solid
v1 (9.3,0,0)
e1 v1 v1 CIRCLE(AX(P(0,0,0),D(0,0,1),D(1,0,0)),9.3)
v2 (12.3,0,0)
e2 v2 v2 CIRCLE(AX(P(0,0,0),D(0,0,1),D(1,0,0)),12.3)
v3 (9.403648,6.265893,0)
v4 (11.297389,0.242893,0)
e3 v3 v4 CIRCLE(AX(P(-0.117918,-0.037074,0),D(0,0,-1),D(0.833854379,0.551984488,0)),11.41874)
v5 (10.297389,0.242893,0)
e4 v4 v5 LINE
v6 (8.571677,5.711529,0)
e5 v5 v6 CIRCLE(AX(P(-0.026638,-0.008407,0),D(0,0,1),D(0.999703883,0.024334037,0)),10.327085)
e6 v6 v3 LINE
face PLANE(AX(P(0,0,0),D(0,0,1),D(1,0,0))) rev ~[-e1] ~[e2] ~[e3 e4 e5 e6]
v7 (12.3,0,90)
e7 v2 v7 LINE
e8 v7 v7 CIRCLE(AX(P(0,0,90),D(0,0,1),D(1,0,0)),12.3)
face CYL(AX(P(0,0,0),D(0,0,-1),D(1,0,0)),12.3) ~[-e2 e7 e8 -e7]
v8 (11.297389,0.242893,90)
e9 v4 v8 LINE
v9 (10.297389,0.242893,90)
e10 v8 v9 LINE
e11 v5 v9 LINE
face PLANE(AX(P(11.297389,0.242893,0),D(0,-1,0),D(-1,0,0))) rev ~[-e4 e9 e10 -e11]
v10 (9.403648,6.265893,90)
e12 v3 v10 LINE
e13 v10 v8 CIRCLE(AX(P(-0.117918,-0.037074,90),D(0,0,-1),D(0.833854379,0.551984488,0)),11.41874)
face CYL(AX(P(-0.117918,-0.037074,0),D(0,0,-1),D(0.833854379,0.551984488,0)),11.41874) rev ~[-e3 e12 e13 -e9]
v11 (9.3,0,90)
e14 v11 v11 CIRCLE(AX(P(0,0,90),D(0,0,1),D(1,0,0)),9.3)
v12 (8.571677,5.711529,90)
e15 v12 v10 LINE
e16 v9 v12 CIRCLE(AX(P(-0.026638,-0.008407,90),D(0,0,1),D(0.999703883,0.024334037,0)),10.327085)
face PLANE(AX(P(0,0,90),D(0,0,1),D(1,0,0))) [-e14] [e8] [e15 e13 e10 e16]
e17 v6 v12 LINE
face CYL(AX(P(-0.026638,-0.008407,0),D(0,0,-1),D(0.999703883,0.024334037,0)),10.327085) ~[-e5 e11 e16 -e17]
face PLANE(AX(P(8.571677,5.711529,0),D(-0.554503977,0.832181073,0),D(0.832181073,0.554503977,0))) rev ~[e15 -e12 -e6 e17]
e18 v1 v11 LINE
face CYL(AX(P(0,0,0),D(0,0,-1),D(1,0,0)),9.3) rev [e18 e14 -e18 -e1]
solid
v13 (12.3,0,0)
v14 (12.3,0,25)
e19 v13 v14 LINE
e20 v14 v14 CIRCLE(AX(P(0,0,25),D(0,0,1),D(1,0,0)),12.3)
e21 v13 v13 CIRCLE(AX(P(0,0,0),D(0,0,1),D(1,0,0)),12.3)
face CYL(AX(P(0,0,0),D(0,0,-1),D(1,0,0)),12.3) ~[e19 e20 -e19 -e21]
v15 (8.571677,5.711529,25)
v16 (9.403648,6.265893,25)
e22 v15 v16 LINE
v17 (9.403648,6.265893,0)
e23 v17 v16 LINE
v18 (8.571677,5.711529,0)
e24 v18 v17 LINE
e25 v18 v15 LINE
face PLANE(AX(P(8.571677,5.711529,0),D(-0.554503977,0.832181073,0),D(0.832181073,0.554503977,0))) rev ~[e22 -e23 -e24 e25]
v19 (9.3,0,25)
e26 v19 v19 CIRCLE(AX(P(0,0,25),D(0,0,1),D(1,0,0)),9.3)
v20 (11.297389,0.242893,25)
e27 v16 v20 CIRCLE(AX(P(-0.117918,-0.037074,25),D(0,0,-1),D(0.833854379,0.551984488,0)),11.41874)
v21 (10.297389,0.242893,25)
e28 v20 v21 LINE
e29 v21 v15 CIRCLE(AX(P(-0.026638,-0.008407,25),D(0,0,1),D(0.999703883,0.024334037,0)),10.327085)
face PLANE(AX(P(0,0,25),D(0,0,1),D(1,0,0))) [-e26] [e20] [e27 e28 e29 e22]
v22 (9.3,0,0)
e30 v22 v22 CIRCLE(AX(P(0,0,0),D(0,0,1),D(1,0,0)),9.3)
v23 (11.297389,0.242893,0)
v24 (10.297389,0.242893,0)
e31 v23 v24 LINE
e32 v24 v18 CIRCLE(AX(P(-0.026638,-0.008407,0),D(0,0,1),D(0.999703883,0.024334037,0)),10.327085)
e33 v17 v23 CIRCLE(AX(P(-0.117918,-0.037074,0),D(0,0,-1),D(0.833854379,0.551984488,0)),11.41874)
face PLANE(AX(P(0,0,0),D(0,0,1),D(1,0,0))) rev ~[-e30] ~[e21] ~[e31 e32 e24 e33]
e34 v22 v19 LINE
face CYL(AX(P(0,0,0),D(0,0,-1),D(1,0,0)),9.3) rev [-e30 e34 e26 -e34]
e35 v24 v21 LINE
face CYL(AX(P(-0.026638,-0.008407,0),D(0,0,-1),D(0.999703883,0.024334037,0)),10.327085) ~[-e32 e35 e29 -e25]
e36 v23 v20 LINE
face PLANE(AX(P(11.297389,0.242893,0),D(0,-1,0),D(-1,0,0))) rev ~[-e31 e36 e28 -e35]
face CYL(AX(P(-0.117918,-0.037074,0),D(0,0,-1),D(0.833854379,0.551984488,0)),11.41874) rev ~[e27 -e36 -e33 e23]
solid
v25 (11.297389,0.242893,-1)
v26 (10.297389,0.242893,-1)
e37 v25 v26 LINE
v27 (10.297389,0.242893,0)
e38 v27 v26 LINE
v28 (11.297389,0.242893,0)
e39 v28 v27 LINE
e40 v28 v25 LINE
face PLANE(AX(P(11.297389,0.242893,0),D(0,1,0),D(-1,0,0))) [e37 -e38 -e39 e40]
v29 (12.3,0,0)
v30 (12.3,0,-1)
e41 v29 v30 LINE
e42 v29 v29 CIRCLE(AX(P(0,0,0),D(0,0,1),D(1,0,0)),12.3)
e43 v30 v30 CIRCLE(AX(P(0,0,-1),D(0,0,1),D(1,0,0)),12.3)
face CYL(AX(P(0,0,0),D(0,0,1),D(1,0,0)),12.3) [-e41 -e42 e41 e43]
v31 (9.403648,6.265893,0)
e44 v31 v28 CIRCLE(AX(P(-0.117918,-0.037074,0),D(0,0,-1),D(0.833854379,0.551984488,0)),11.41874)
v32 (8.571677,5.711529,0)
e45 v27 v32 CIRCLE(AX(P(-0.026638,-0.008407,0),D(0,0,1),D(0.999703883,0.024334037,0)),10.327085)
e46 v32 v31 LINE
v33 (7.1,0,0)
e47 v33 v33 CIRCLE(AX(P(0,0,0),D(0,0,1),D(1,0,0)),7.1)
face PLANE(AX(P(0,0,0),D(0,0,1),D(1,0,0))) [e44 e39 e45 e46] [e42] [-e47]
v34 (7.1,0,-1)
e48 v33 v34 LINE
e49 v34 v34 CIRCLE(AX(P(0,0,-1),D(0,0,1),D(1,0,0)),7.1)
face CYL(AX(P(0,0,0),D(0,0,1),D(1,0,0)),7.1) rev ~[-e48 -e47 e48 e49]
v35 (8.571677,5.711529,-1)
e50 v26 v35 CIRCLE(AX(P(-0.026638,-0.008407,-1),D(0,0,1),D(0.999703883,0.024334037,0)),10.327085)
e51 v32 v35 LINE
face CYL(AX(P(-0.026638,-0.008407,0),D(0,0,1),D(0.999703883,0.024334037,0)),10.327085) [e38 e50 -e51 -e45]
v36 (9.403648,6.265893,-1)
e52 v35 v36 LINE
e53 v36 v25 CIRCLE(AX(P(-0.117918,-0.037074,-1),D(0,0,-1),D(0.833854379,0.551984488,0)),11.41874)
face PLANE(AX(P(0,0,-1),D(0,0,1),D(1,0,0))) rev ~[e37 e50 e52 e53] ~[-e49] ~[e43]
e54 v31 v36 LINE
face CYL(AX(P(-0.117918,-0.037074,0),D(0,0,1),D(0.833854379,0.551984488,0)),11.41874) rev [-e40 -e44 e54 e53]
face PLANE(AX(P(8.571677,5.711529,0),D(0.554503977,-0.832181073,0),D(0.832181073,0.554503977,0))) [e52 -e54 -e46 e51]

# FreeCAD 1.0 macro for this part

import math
import FreeCAD as App
import Part
import Sketcher
Q = App.Units.Quantity

doc = App.newDocument("Part")
body = doc.addObject("PartDesign::Body", "Body")

sketch1 = body.newObject("Sketcher::SketchObject", "Sketch")
sketch1.AttachmentSupport = (doc.getObject("XY_Plane"), [""])
sketch1.MapMode = "FlatFace"
sketch1.addGeometry([
    Part.Circle(App.Vector(0, 0, 0), App.Vector(0, 0, 1), 12.3),
    Part.Circle(App.Vector(0, 0, 0), App.Vector(0, 0, 1), 9.3),
    Part.ArcOfCircle(Part.Circle(App.Vector(-0.117918, -0.037074, 0), App.Vector(0, 0, 1), 11.41874), math.radians(1.404933), math.radians(33.503264)),
    Part.LineSegment(App.Vector(11.297389, 0.242893, 0), App.Vector(10.297389, 0.242893, 0)),
    Part.ArcOfCircle(Part.Circle(App.Vector(-0.026638, -0.008407, 0), App.Vector(0, 0, 1), 10.327085), math.radians(1.394375), math.radians(33.633406)),
    Part.LineSegment(App.Vector(8.571677, 5.711529, 0), App.Vector(9.403648, 6.265893, 0)),
], False)
sketch1.addConstraint([
    Sketcher.Constraint("Coincident", 2, 1, 3, 1),
    Sketcher.Constraint("Coincident", 3, 2, 4, 1),
    Sketcher.Constraint("Coincident", 4, 2, 5, 1),
    Sketcher.Constraint("Coincident", 5, 2, 2, 2),
    Sketcher.Constraint("Horizontal", 3),
    Sketcher.Constraint("Coincident", 0, 3, -1, 1),
    Sketcher.Constraint("Coincident", 1, 3, -1, 1),
    Sketcher.Constraint("Diameter", 0, Q("24.6 mm")),
    Sketcher.Constraint("Diameter", 1, Q("18.6 mm")),
    Sketcher.Constraint("DistanceX", 3, 2, 3, 1, Q("1 mm")),
    Sketcher.Constraint("Radius", 2, Q("11.41874 mm")),
    Sketcher.Constraint("Radius", 4, Q("10.327085 mm")),
    Sketcher.Constraint("DistanceY", 3, 2, 5, 2, Q("6.023 mm")),
    Sketcher.Constraint("DistanceY", 4, 3, 2, 1, Q("0.2513 mm")),
    Sketcher.Constraint("DistanceX", 2, 3, -1, 1, Q("0.117918 mm")),
    Sketcher.Constraint("DistanceX", -1, 1, 2, 1, Q("11.297389 mm")),
    Sketcher.Constraint("DistanceY", -1, 1, 4, 2, Q("5.711529 mm")),
    Sketcher.Constraint("DistanceX", 4, 2, 2, 1, Q("2.725712 mm")),
])
pad1 = body.newObject("PartDesign::Pad", "Pad")
pad1.Profile = sketch1
pad1.Length = 90
body2 = doc.addObject("PartDesign::Body", "Body001")

sketch2 = body2.newObject("Sketcher::SketchObject", "Sketch001")
sketch2.AttachmentSupport = (doc.getObject("XY_Plane001"), [""])
sketch2.MapMode = "FlatFace"
sketch2.addGeometry([
    Part.Circle(App.Vector(0, 0, 0), App.Vector(0, 0, 1), 12.3),
    Part.Circle(App.Vector(0, 0, 0), App.Vector(0, 0, 1), 7.1),
    Part.ArcOfCircle(Part.Circle(App.Vector(-0.117918, -0.037074, 0), App.Vector(0, 0, 1), 11.41874), math.radians(1.404933), math.radians(33.503264)),
    Part.LineSegment(App.Vector(11.297389, 0.242893, 0), App.Vector(10.297389, 0.242893, 0)),
    Part.ArcOfCircle(Part.Circle(App.Vector(-0.026638, -0.008407, 0), App.Vector(0, 0, 1), 10.327085), math.radians(1.394375), math.radians(33.633406)),
    Part.LineSegment(App.Vector(8.571677, 5.711529, 0), App.Vector(9.403648, 6.265893, 0)),
], False)
sketch2.addConstraint([
    Sketcher.Constraint("Coincident", 2, 1, 3, 1),
    Sketcher.Constraint("Coincident", 3, 2, 4, 1),
    Sketcher.Constraint("Coincident", 4, 2, 5, 1),
    Sketcher.Constraint("Coincident", 5, 2, 2, 2),
    Sketcher.Constraint("Horizontal", 3),
    Sketcher.Constraint("Coincident", 0, 3, -1, 1),
    Sketcher.Constraint("Coincident", 1, 3, -1, 1),
    Sketcher.Constraint("Diameter", 0, Q("24.6 mm")),
    Sketcher.Constraint("Diameter", 1, Q("14.2 mm")),
    Sketcher.Constraint("DistanceX", 3, 2, 3, 1, Q("1 mm")),
    Sketcher.Constraint("Radius", 2, Q("11.41874 mm")),
    Sketcher.Constraint("Radius", 4, Q("10.327085 mm")),
    Sketcher.Constraint("DistanceY", 3, 2, 5, 2, Q("6.023 mm")),
    Sketcher.Constraint("DistanceY", 4, 3, 2, 1, Q("0.2513 mm")),
    Sketcher.Constraint("DistanceX", 2, 3, -1, 1, Q("0.117918 mm")),
    Sketcher.Constraint("DistanceX", -1, 1, 2, 1, Q("11.297389 mm")),
    Sketcher.Constraint("DistanceY", -1, 1, 4, 2, Q("5.711529 mm")),
    Sketcher.Constraint("DistanceX", 4, 2, 2, 1, Q("2.725712 mm")),
])
pad2 = body2.newObject("PartDesign::Pad", "Pad001")
pad2.Profile = sketch2
pad2.Length = 1
pad2.Reversed = True
body3 = doc.addObject("PartDesign::Body", "Body002")

sketch3 = body3.newObject("Sketcher::SketchObject", "Sketch002")
sketch3.AttachmentSupport = (doc.getObject("XY_Plane002"), [""])
sketch3.MapMode = "FlatFace"
sketch3.addGeometry([
    Part.Circle(App.Vector(0, 0, 0), App.Vector(0, 0, 1), 12.3),
    Part.Circle(App.Vector(0, 0, 0), App.Vector(0, 0, 1), 9.3),
    Part.ArcOfCircle(Part.Circle(App.Vector(-0.117918, -0.037074, 0), App.Vector(0, 0, 1), 11.41874), math.radians(1.404933), math.radians(33.503264)),
    Part.LineSegment(App.Vector(11.297389, 0.242893, 0), App.Vector(10.297389, 0.242893, 0)),
    Part.ArcOfCircle(Part.Circle(App.Vector(-0.026638, -0.008407, 0), App.Vector(0, 0, 1), 10.327085), math.radians(1.394375), math.radians(33.633406)),
    Part.LineSegment(App.Vector(8.571677, 5.711529, 0), App.Vector(9.403648, 6.265893, 0)),
], False)
sketch3.addConstraint([
    Sketcher.Constraint("Coincident", 2, 1, 3, 1),
    Sketcher.Constraint("Coincident", 3, 2, 4, 1),
    Sketcher.Constraint("Coincident", 4, 2, 5, 1),
    Sketcher.Constraint("Coincident", 5, 2, 2, 2),
    Sketcher.Constraint("Horizontal", 3),
    Sketcher.Constraint("Coincident", 0, 3, -1, 1),
    Sketcher.Constraint("Coincident", 1, 3, -1, 1),
    Sketcher.Constraint("Diameter", 0, Q("24.6 mm")),
    Sketcher.Constraint("Diameter", 1, Q("18.6 mm")),
    Sketcher.Constraint("DistanceX", 3, 2, 3, 1, Q("1 mm")),
    Sketcher.Constraint("Radius", 2, Q("11.41874 mm")),
    Sketcher.Constraint("Radius", 4, Q("10.327085 mm")),
    Sketcher.Constraint("DistanceY", 3, 2, 5, 2, Q("6.023 mm")),
    Sketcher.Constraint("DistanceY", 4, 3, 2, 1, Q("0.2513 mm")),
    Sketcher.Constraint("DistanceX", 2, 3, -1, 1, Q("0.117918 mm")),
    Sketcher.Constraint("DistanceX", -1, 1, 2, 1, Q("11.297389 mm")),
    Sketcher.Constraint("DistanceY", -1, 1, 4, 2, Q("5.711529 mm")),
    Sketcher.Constraint("DistanceX", 4, 2, 2, 1, Q("2.725712 mm")),
])
pad3 = body3.newObject("PartDesign::Pad", "Pad002")
pad3.Profile = sketch3
pad3.Length = 25

doc.recompute()
